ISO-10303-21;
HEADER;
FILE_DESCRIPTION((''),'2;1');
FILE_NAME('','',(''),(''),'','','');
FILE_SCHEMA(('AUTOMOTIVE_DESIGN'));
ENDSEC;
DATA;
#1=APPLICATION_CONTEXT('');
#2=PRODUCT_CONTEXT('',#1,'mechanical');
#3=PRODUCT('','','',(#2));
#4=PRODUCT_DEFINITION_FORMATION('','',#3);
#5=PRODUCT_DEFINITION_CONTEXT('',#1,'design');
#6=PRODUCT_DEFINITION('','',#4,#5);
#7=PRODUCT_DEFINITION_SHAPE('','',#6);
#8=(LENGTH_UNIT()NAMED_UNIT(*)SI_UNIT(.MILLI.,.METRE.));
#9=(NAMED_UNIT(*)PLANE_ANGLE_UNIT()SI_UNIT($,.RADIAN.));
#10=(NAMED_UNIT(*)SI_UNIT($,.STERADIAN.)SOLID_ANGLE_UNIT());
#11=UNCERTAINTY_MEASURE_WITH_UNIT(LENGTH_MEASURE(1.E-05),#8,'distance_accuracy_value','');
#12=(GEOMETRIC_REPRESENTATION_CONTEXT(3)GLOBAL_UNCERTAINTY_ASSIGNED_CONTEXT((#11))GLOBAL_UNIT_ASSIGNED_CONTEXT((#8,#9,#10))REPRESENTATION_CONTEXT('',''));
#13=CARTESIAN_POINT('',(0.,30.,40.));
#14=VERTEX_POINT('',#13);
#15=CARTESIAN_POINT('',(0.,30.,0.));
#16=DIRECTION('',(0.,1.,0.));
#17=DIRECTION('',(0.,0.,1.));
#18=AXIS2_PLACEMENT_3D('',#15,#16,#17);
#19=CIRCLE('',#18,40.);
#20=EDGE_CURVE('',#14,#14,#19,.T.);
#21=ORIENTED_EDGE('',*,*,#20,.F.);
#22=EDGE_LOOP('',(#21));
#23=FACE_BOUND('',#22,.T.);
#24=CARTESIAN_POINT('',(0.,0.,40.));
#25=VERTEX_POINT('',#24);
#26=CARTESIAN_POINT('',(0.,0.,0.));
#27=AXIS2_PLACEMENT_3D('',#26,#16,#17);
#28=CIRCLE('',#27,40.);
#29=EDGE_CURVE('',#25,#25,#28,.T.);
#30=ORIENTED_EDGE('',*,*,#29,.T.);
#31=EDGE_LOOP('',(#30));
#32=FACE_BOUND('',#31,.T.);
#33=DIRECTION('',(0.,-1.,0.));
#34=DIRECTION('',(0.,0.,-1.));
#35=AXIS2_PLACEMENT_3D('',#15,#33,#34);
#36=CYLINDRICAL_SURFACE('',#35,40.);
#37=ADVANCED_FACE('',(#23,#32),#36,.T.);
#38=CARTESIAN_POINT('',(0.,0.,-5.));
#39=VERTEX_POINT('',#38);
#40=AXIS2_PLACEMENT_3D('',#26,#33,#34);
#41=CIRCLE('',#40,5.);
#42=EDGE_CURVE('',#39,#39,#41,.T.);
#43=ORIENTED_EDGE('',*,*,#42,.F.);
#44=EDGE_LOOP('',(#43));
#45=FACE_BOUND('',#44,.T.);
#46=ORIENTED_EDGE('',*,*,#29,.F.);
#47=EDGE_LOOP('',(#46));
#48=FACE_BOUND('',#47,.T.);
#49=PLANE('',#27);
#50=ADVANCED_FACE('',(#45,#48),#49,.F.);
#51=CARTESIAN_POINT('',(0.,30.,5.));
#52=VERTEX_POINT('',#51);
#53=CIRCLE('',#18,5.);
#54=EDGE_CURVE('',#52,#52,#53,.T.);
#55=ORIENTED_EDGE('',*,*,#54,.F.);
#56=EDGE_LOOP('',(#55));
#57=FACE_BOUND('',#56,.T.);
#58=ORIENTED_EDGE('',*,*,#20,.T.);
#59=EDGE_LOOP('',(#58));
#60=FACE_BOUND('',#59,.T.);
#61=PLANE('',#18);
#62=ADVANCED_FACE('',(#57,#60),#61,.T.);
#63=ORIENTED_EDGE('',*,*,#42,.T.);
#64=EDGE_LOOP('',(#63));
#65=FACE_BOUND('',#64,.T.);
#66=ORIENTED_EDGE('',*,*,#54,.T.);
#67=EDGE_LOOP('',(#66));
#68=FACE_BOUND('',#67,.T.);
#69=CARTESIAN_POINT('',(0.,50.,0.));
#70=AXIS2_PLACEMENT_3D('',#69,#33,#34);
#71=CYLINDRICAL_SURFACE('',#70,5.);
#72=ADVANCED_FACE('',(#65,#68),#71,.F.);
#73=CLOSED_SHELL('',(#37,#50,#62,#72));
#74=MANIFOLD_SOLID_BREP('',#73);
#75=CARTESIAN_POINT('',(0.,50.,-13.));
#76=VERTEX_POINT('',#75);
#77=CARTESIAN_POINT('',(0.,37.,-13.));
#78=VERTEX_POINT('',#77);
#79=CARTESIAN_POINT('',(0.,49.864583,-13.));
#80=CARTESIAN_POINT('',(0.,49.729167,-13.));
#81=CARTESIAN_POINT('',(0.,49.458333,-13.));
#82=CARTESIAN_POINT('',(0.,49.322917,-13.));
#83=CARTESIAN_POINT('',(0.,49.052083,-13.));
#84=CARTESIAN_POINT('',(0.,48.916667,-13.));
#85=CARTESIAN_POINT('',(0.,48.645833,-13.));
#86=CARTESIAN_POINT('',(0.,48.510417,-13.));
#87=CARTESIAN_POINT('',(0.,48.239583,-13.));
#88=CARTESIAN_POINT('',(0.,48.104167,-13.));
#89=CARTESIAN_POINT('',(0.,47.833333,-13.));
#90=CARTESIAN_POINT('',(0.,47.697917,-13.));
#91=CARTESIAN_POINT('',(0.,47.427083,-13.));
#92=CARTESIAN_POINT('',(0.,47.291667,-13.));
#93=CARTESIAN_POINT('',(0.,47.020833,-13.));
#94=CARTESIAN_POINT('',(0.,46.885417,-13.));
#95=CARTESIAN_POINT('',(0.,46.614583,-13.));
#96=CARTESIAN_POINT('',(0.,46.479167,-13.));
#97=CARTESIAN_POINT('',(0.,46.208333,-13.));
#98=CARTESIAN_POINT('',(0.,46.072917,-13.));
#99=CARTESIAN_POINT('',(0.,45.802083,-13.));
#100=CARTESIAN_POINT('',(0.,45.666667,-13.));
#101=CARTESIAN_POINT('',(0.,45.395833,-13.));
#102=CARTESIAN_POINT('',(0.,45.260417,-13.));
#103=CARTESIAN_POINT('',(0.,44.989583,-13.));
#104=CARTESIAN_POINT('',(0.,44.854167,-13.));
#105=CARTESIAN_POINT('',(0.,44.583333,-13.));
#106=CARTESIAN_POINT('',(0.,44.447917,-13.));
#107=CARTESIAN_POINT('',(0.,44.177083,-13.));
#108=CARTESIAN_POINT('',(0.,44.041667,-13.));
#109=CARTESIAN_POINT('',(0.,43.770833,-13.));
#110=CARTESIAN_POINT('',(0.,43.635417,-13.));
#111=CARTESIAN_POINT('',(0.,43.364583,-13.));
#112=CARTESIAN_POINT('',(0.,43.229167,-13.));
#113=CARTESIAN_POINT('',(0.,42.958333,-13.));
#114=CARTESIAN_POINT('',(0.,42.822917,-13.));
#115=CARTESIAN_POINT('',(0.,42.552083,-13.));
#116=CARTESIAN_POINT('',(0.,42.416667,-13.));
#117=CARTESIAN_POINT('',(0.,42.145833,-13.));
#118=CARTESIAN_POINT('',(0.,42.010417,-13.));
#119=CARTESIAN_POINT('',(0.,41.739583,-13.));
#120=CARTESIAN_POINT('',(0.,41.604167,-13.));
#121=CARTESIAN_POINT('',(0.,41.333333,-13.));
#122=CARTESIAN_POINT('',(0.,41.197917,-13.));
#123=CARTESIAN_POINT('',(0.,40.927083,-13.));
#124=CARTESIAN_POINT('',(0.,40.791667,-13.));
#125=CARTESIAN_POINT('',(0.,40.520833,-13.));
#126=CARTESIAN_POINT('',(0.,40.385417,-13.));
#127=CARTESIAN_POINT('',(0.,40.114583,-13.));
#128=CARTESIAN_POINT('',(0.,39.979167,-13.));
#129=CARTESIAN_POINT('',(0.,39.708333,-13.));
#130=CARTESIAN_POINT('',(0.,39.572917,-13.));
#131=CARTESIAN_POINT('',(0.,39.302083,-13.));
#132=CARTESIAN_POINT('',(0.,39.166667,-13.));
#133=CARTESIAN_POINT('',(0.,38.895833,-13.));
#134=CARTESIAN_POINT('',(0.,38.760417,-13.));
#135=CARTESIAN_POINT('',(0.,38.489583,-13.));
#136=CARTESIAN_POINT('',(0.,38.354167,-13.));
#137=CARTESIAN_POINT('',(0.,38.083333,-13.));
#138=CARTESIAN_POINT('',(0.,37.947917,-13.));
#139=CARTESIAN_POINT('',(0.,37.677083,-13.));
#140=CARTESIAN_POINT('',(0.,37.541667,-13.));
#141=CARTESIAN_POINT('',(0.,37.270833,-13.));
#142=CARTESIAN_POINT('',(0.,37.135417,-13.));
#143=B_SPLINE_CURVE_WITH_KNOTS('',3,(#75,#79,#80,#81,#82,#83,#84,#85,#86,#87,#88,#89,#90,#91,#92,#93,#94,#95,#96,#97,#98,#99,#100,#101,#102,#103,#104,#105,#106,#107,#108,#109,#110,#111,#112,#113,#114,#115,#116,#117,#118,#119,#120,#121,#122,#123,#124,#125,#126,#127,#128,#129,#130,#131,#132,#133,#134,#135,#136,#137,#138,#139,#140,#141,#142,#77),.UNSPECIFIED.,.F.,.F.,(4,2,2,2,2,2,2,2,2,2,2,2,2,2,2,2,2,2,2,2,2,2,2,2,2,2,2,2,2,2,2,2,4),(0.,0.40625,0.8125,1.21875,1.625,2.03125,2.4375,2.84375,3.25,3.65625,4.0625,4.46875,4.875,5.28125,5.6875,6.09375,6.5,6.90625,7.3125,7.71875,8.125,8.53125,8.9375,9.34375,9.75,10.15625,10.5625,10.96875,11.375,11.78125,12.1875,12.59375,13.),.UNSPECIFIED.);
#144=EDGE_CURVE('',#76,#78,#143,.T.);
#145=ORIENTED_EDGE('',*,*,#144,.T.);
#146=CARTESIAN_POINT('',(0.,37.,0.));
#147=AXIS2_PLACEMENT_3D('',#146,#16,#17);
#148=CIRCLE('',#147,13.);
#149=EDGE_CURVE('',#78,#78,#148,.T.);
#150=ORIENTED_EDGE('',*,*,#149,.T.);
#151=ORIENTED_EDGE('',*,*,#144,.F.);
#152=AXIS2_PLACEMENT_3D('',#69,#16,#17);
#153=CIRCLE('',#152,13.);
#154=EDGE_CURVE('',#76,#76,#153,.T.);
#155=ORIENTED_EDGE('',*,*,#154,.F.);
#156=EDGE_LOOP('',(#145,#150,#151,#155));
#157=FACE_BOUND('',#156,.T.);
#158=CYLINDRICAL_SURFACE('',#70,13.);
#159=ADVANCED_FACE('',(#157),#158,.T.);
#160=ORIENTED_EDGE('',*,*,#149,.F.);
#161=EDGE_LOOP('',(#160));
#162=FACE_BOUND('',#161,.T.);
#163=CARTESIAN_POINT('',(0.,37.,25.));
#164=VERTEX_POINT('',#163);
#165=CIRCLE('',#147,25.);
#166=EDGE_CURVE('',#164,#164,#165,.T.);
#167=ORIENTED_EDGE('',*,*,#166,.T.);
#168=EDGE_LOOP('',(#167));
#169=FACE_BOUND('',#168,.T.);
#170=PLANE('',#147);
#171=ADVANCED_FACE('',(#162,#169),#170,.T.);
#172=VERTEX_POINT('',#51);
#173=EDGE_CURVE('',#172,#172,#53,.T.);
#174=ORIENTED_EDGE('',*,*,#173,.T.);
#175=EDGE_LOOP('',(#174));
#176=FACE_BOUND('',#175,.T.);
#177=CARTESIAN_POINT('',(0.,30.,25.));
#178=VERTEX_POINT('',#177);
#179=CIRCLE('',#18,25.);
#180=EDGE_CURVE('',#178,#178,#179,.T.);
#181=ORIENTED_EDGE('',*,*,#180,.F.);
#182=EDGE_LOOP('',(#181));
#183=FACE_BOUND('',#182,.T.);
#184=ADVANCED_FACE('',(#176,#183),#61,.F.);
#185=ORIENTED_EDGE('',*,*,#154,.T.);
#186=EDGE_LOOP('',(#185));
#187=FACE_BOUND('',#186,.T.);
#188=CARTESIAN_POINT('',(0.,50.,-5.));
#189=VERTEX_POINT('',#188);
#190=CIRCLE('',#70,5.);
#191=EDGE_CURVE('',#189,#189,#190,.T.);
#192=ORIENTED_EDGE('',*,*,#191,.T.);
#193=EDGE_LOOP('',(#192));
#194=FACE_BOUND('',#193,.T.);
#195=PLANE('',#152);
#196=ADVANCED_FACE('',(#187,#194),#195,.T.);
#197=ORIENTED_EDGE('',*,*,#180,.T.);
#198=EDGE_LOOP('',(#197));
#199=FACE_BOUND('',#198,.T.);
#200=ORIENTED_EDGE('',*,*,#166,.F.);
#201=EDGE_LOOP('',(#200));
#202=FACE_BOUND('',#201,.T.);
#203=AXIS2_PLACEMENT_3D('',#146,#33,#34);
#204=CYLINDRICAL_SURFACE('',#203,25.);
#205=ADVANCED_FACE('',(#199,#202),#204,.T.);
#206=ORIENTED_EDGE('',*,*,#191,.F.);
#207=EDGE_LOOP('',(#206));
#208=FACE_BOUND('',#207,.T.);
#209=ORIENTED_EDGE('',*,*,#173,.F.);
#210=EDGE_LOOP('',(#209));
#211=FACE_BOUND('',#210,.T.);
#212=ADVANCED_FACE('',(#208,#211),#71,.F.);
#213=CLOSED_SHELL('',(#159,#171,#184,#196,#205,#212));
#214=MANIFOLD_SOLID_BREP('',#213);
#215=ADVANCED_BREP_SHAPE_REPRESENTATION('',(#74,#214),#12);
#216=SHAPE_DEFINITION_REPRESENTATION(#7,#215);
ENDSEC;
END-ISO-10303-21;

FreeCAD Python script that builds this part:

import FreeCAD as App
import Part
import Sketcher
from FreeCAD import Vector
Q = App.Units.Quantity

doc = App.newDocument("Part")
body = doc.addObject("PartDesign::Body", "Body")

# Sketch on XZ plane
sketch1 = body.newObject("Sketcher::SketchObject", "Sketch")
sketch1.AttachmentSupport = (doc.getObject("XZ_Plane"), [""])
sketch1.MapMode = "FlatFace"
sketch1.addGeometry(Part.Circle(Vector(0, 0, 0), Vector(0, 0, 1), 40), False)
sketch1.addConstraint(Sketcher.Constraint("Coincident", 0, 3, -1, 1))
sketch1.addConstraint(Sketcher.Constraint("Diameter", 0, Q("80 mm")))
pad1 = body.newObject("PartDesign::Pad", "Pad")
pad1.Profile = sketch1
pad1.Length = 30
pad1.Reversed = True
body2 = doc.addObject("PartDesign::Body", "Body001")

# Sketch on XZ plane
sketch2 = body2.newObject("Sketcher::SketchObject", "Sketch001")
sketch2.AttachmentSupport = (doc.getObject("XZ_Plane001"), [""])
sketch2.MapMode = "FlatFace"
sketch2.AttachmentOffset = App.Placement(Vector(0, 0, -30), App.Rotation())
sketch2.addGeometry(Part.Circle(Vector(0, 0, 0), Vector(0, 0, 1), 25), False)
sketch2.addConstraint(Sketcher.Constraint("Coincident", 0, 3, -1, 1))
sketch2.addConstraint(Sketcher.Constraint("Diameter", 0, Q("50 mm")))
pad2 = body2.newObject("PartDesign::Pad", "Pad001")
pad2.Profile = sketch2
pad2.Length = 7
pad2.Reversed = True

# Sketch on XZ plane
sketch3 = body2.newObject("Sketcher::SketchObject", "Sketch002")
sketch3.AttachmentSupport = (doc.getObject("XZ_Plane001"), [""])
sketch3.MapMode = "FlatFace"
sketch3.AttachmentOffset = App.Placement(Vector(0, 0, -37), App.Rotation())
sketch3.addGeometry(Part.Circle(Vector(0, 0, 0), Vector(0, 0, 1), 13), False)
sketch3.addConstraint(Sketcher.Constraint("Coincident", 0, 3, -1, 1))
sketch3.addConstraint(Sketcher.Constraint("Diameter", 0, Q("26 mm")))
pad3 = body2.newObject("PartDesign::Pad", "Pad002")
pad3.Profile = sketch3
pad3.Length = 13
pad3.Reversed = True
body3 = doc.addObject("PartDesign::Body", "Body002")

# Sketch on XZ plane
sketch4 = body3.newObject("Sketcher::SketchObject", "Sketch003")
sketch4.AttachmentSupport = (doc.getObject("XZ_Plane002"), [""])
sketch4.MapMode = "FlatFace"
sketch4.addGeometry(Part.Circle(Vector(0, 0, 0), Vector(0, 0, 1), 5), False)
sketch4.addConstraint(Sketcher.Constraint("Coincident", 0, 3, -1, 1))
sketch4.addConstraint(Sketcher.Constraint("Diameter", 0, Q("10 mm")))
pad4 = body3.newObject("PartDesign::Pad", "Pad003")
pad4.Profile = sketch4
pad4.Length = 50
pad4.Reversed = True
doc.recompute()

body4 = doc.addObject("PartDesign::Body", "Body003")
body4.BaseFeature = body3
boolean = body.newObject("PartDesign::Boolean", "Boolean")
boolean.Type = "Cut"
boolean.addObjects([body4])
doc.recompute()

boolean2 = body2.newObject("PartDesign::Boolean", "Boolean001")
boolean2.Type = "Cut"
boolean2.addObjects([body3])

doc.recompute()
